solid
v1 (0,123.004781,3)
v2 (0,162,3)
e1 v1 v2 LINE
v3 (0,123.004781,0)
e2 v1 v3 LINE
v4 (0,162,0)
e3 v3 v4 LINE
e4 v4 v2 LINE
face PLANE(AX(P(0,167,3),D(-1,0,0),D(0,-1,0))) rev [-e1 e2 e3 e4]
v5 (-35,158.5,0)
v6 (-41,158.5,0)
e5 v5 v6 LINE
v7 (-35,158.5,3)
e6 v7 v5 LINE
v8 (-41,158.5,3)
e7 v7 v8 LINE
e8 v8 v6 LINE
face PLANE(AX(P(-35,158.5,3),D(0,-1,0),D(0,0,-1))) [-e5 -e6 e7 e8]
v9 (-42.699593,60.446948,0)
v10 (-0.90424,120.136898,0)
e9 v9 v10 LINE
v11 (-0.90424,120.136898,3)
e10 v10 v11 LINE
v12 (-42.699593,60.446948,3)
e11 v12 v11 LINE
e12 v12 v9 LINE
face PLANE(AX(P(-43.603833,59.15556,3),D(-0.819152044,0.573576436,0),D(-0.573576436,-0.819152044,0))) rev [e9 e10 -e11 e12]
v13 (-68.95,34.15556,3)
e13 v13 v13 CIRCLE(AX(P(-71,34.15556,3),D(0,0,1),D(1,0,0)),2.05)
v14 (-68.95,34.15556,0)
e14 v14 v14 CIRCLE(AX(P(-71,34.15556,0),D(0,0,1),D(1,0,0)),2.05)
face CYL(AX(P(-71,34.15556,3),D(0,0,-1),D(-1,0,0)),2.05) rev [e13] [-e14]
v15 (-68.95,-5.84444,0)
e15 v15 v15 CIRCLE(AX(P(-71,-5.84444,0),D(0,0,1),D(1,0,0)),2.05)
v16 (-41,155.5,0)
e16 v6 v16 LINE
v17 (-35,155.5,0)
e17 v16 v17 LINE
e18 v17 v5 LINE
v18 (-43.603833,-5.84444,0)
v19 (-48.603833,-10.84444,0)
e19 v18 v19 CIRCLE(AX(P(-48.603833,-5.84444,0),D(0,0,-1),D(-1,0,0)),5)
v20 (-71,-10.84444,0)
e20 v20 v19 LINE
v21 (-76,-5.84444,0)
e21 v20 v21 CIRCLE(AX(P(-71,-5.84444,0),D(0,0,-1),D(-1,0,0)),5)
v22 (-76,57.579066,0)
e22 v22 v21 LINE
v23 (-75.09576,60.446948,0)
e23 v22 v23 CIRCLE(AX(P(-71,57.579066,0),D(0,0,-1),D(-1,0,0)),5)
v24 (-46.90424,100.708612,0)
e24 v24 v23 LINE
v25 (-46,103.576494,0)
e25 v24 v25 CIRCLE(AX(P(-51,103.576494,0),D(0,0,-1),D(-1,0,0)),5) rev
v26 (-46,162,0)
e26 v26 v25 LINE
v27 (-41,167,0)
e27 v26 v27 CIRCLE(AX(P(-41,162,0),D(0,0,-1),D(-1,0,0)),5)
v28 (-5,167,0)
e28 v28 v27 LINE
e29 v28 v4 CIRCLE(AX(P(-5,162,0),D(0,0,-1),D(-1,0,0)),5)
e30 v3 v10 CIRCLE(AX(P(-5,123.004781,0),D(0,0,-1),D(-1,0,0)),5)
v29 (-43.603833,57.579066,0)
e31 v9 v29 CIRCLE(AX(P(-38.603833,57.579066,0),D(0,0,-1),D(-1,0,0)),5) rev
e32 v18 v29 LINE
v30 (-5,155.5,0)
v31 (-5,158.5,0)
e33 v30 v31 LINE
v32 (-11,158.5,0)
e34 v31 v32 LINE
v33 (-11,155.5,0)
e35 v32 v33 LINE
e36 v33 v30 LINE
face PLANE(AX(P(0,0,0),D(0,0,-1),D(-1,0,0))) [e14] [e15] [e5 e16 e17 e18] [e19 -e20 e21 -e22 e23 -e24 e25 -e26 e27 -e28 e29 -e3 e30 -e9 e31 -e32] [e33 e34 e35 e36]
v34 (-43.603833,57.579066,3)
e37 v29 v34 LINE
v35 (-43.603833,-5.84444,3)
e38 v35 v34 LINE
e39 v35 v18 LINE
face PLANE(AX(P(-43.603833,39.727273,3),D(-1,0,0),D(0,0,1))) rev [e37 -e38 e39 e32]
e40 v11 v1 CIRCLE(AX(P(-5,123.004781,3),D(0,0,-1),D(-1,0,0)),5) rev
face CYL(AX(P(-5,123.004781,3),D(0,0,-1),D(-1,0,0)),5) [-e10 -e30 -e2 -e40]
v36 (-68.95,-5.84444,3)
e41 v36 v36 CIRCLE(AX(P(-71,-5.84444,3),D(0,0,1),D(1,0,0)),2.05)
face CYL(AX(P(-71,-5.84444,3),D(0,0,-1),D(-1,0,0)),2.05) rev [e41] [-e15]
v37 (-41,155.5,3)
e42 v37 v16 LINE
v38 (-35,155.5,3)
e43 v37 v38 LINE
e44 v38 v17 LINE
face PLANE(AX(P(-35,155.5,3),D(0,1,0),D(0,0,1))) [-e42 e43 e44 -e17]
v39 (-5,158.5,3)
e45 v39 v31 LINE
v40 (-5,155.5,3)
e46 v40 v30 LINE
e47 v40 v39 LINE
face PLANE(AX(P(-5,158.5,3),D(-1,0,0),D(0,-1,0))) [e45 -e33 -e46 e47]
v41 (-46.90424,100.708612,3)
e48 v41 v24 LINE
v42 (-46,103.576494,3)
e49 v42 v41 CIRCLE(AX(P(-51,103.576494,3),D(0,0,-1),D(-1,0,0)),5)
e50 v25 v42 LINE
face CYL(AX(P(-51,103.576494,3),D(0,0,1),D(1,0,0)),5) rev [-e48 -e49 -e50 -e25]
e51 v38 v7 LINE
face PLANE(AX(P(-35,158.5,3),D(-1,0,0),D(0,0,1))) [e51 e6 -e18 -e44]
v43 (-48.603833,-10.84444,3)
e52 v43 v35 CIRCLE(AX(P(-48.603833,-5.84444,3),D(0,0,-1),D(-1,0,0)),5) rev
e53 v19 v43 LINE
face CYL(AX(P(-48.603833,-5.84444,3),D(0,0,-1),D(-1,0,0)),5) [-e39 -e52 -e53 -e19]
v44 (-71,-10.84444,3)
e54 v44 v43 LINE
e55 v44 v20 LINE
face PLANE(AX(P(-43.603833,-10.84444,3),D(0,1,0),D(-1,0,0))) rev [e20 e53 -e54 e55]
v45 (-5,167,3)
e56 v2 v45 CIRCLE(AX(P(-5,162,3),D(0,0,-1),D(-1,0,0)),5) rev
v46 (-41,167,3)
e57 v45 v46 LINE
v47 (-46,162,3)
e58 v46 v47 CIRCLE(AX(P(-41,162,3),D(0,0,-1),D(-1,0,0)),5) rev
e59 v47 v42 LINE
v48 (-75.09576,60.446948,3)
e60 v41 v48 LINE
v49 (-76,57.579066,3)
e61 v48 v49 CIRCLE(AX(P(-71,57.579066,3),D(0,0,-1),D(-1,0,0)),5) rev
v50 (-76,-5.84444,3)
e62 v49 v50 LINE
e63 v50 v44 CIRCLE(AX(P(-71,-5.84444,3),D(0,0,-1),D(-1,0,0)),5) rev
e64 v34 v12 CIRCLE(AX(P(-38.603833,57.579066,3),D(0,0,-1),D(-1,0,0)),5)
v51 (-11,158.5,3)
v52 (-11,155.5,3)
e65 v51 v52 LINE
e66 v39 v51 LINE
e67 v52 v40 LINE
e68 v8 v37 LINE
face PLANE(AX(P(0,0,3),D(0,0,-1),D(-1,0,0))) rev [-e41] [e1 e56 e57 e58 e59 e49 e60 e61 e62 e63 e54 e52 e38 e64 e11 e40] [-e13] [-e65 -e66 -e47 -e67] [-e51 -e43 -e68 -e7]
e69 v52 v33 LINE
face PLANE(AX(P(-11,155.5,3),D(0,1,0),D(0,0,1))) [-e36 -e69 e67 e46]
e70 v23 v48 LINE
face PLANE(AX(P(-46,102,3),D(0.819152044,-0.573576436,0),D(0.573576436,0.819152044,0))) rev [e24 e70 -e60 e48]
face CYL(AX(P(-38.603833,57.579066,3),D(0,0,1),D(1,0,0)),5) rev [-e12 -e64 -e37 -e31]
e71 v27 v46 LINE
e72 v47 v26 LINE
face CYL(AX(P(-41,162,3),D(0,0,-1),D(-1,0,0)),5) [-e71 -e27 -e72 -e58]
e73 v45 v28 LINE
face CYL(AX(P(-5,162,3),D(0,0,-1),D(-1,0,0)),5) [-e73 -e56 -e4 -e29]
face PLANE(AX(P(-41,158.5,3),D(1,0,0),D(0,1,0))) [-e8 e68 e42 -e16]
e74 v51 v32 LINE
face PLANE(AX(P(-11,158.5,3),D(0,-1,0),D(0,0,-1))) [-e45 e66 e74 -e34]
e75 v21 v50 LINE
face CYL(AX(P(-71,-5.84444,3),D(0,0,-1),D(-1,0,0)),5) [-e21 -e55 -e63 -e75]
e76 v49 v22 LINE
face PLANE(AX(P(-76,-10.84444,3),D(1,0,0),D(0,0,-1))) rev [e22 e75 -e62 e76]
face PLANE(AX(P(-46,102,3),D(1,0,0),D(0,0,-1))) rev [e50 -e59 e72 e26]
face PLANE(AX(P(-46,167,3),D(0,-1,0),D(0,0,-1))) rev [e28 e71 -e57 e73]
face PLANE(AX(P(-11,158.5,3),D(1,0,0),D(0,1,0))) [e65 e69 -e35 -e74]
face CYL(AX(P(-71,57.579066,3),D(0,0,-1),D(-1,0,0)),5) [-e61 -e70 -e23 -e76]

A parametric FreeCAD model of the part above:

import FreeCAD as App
import Part
import Sketcher
from FreeCAD import Vector
Q = App.Units.Quantity


def edges_at(feature, points):
    """Names of the edges that pass closest to the given points."""
    edges = feature.Shape.Edges
    near = lambda p: min(range(len(edges)), key=lambda i: edges[i].distToShape(Part.Vertex(*p))[0])
    return sorted({f"Edge{near(p) + 1}" for p in points})

doc = App.newDocument("Part")
params = doc.addObject("Spreadsheet::Sheet", "Params")
for row, (alias, value) in enumerate([
    ("sketch1_diameter", "4.1 mm"),
    ("sketch1_width", "46 mm"),
    ("sketch1_width2", "6 mm"),
    ("sketch1_height", "70 mm"),
    ("sketch1_height2", "65 mm"),
    ("pad1_length", "3 mm"),
    ("fillet_radius", "5 mm"),
], start=1):
    params.set(f"A{row}", alias)
    params.set(f"B{row}", "=" + value)
    params.setAlias(f"B{row}", alias)

body = doc.addObject("PartDesign::Body", "Body")

sketch1 = doc.addObject("Sketcher::SketchObject", "Sketch")
body.addObject(sketch1)
sketch1.AttachmentSupport = (doc.XY_Plane, [""])
sketch1.MapMode = "FlatFace"
sketch1.addGeometry([
    Part.LineSegment(Vector(-76, -10.8, 0), Vector(-43.6, -10.8, 0)),
    Part.LineSegment(Vector(-43.6, -10.8, 0), Vector(-43.6, 59.2, 0)),
    Part.LineSegment(Vector(-43.6, 59.2, 0), Vector(0, 121.4, 0)),
    Part.LineSegment(Vector(0, 121.4, 0), Vector(0, 167, 0)),
    Part.LineSegment(Vector(0, 167, 0), Vector(-46, 167, 0)),
    Part.LineSegment(Vector(-46, 167, 0), Vector(-46, 102, 0)),
    Part.LineSegment(Vector(-46, 102, 0), Vector(-76, 59.2, 0)),
    Part.LineSegment(Vector(-76, 59.2, 0), Vector(-76, -10.8, 0)),
    Part.Circle(Vector(-71, -5.8, 0), Vector(0, 0, 1), 2),
    Part.Circle(Vector(-71, 34.2, 0), Vector(0, 0, 1), 2),
    Part.LineSegment(Vector(-11, 155.5, 0), Vector(-11, 158.5, 0)),
    Part.LineSegment(Vector(-11, 158.5, 0), Vector(-5, 158.5, 0)),
    Part.LineSegment(Vector(-5, 158.5, 0), Vector(-5, 155.5, 0)),
    Part.LineSegment(Vector(-5, 155.5, 0), Vector(-11, 155.5, 0)),
    Part.LineSegment(Vector(-41, 155.5, 0), Vector(-41, 158.5, 0)),
    Part.LineSegment(Vector(-41, 158.5, 0), Vector(-35, 158.5, 0)),
    Part.LineSegment(Vector(-35, 158.5, 0), Vector(-35, 155.5, 0)),
    Part.LineSegment(Vector(-35, 155.5, 0), Vector(-41, 155.5, 0)),
], False)
sketch1.addConstraint([
    Sketcher.Constraint("Coincident", 0, 2, 1, 1),
    Sketcher.Constraint("Coincident", 1, 2, 2, 1),
    Sketcher.Constraint("Coincident", 2, 2, 3, 1),
    Sketcher.Constraint("Coincident", 3, 2, 4, 1),
    Sketcher.Constraint("Coincident", 4, 2, 5, 1),
    Sketcher.Constraint("Coincident", 5, 2, 6, 1),
    Sketcher.Constraint("Coincident", 6, 2, 7, 1),
    Sketcher.Constraint("Coincident", 7, 2, 0, 1),
    Sketcher.Constraint("Coincident", 10, 2, 11, 1),
    Sketcher.Constraint("Coincident", 11, 2, 12, 1),
    Sketcher.Constraint("Coincident", 12, 2, 13, 1),
    Sketcher.Constraint("Coincident", 13, 2, 10, 1),
    Sketcher.Constraint("Coincident", 14, 2, 15, 1),
    Sketcher.Constraint("Coincident", 15, 2, 16, 1),
    Sketcher.Constraint("Coincident", 16, 2, 17, 1),
    Sketcher.Constraint("Coincident", 17, 2, 14, 1),
    Sketcher.Constraint("Horizontal", 0),
    Sketcher.Constraint("Vertical", 1),
    Sketcher.Constraint("Vertical", 3),
    Sketcher.Constraint("Horizontal", 4),
    Sketcher.Constraint("Vertical", 5),
    Sketcher.Constraint("Vertical", 7),
    Sketcher.Constraint("Vertical", 10),
    Sketcher.Constraint("Horizontal", 11),
    Sketcher.Constraint("Vertical", 12),
    Sketcher.Constraint("Horizontal", 13),
    Sketcher.Constraint("Vertical", 14),
    Sketcher.Constraint("Horizontal", 15),
    Sketcher.Constraint("Vertical", 16),
    Sketcher.Constraint("Horizontal", 17),
    Sketcher.Constraint("Equal", 8, 9),
    Sketcher.Constraint("PointOnObject", 2, 2, -2),
    Sketcher.Constraint("Parallel", 2, 6),
    Sketcher.Constraint("Horizontal", 1, 2, 6, 2),
    Sketcher.Constraint("Horizontal", 11, 2, 14, 2),
    Sketcher.Constraint("Horizontal", 13, 2, 16, 2),
    Sketcher.Constraint("Vertical", 8, 3, 9, 3),
    Sketcher.Constraint("Equal", 13, 15),
    Sketcher.Constraint("Diameter", 8, 4.1),
    Sketcher.Constraint("DistanceX", 4, 2, 4, 1, 46.0),
    Sketcher.Constraint("DistanceX", 11, 1, 11, 2, 6.0),
    Sketcher.Constraint("DistanceY", 1, 1, 1, 2, 70.0),
    Sketcher.Constraint("DistanceY", 5, 2, 5, 1, 65.0),
    Sketcher.Constraint("DistanceY", 10, 1, 10, 2, 3.0),
    Sketcher.Constraint("Angle", 2, Q("55 deg")),
    Sketcher.Constraint("DistanceX", 8, 3, -1, 1, 71.0),
    Sketcher.Constraint("DistanceY", -1, 1, 3, 2, 167.0),
    Sketcher.Constraint("DistanceX", 6, 2, -1, 1, 76.0),
    Sketcher.Constraint("DistanceX", 10, 2, -1, 1, 11.0),
    Sketcher.Constraint("DistanceX", 14, 2, -1, 1, 41.0),
    Sketcher.Constraint("DistanceY", 8, 3, 9, 3, 40.0),
    Sketcher.Constraint("DistanceY", 0, 2, 8, 3, 5.0),
    Sketcher.Constraint("DistanceY", -1, 1, 10, 2, 158.5),
    Sketcher.Constraint("DistanceX", 0, 1, 0, 2, 32.396167),
])
sketch1.setExpression("Constraints[38]", "Params.sketch1_diameter")
sketch1.setExpression("Constraints[39]", "Params.sketch1_width")
sketch1.setExpression("Constraints[40]", "Params.sketch1_width2")
sketch1.setExpression("Constraints[41]", "Params.sketch1_height")
sketch1.setExpression("Constraints[42]", "Params.sketch1_height2")
pad1 = doc.addObject("PartDesign::Pad", "Pad")
body.addObject(pad1)
pad1.Profile = sketch1
pad1.setExpression("Length", "Params.pad1_length")
doc.recompute()

fillet = doc.addObject("PartDesign::Fillet", "Fillet")
body.addObject(fillet)
fillet.Base = (pad1, edges_at(pad1, [
    (-43.604, 59.156, 1.5),
    (-43.604, -10.844, 1.5),
    (-76, -10.844, 1.5),
    (-76, 59.156, 1.5),
    (-46, 102, 1.5),
    (-46, 167, 1.5),
    (0, 167, 1.5),
    (0, 121.428, 1.5),
]))
fillet.setExpression("Radius", "Params.fillet_radius")

doc.recompute()
